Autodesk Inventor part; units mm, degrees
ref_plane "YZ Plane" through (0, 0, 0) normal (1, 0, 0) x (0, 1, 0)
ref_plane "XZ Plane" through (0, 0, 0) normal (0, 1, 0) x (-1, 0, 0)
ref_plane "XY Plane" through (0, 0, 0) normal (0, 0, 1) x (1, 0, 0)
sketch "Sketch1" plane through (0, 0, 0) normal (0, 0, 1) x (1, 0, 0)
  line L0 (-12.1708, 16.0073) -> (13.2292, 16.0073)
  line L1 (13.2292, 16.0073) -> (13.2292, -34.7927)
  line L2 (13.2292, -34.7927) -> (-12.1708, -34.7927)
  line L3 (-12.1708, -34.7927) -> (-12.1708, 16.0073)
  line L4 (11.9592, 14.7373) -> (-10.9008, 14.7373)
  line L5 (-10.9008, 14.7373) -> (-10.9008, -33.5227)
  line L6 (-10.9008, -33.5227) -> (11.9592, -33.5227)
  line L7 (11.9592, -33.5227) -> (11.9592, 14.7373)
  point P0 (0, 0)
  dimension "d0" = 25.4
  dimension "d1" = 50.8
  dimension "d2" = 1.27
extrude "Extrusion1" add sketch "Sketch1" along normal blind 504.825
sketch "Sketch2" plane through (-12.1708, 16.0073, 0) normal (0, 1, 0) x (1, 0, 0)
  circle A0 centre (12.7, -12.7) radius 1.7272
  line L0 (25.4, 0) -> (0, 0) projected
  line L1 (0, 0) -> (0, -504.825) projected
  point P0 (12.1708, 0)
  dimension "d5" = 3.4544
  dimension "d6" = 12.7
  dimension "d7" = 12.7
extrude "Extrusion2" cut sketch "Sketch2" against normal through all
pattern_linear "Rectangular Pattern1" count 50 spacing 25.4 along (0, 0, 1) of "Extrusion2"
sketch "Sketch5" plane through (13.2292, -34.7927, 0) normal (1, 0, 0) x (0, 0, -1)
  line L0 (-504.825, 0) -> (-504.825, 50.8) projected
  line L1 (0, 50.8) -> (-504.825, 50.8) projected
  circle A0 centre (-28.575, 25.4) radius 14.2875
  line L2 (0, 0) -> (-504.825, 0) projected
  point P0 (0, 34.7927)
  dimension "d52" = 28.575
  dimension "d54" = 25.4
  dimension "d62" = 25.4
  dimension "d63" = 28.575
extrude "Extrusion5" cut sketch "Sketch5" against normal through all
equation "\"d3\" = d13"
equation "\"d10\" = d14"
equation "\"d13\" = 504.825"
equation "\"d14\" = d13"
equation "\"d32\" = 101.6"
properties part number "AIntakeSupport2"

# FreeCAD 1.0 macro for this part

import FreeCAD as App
import Part
import Sketcher
Q = App.Units.Quantity

doc = App.newDocument("Part")
body = doc.addObject("PartDesign::Body", "Body")

# Sketch on XY plane
sketch1 = body.newObject("Sketcher::SketchObject", "Sketch")
sketch1.AttachmentSupport = (doc.getObject("XY_Plane"), [""])
sketch1.MapMode = "FlatFace"
sketch1.addGeometry([
    Part.LineSegment(App.Vector(13.2292, 16.0073, 0), App.Vector(-12.1708, 16.0073, 0)),  # 0
    Part.LineSegment(App.Vector(-12.1708, 16.0073, 0), App.Vector(-12.1708, -34.7927, 0)),  # 1
    Part.LineSegment(App.Vector(-12.1708, -34.7927, 0), App.Vector(13.2292, -34.7927, 0)),  # 2
    Part.LineSegment(App.Vector(13.2292, -34.7927, 0), App.Vector(13.2292, 16.0073, 0)),  # 3
    Part.LineSegment(App.Vector(-10.9008, 14.7373, 0), App.Vector(11.9592, 14.7373, 0)),  # 4
    Part.LineSegment(App.Vector(11.9592, 14.7373, 0), App.Vector(11.9592, -33.5227, 0)),  # 5
    Part.LineSegment(App.Vector(11.9592, -33.5227, 0), App.Vector(-10.9008, -33.5227, 0)),  # 6
    Part.LineSegment(App.Vector(-10.9008, -33.5227, 0), App.Vector(-10.9008, 14.7373, 0)),  # 7
], False)
sketch1.addConstraint([
    Sketcher.Constraint("Coincident", 0, 2, 1, 1),
    Sketcher.Constraint("Coincident", 1, 2, 2, 1),
    Sketcher.Constraint("Coincident", 2, 2, 3, 1),
    Sketcher.Constraint("Coincident", 3, 2, 0, 1),
    Sketcher.Constraint("Coincident", 4, 2, 5, 1),
    Sketcher.Constraint("Coincident", 5, 2, 6, 1),
    Sketcher.Constraint("Coincident", 6, 2, 7, 1),
    Sketcher.Constraint("Coincident", 7, 2, 4, 1),
    Sketcher.Constraint("Horizontal", 0),
    Sketcher.Constraint("Vertical", 1),
    Sketcher.Constraint("Horizontal", 2),
    Sketcher.Constraint("Vertical", 3),
    Sketcher.Constraint("Horizontal", 4),
    Sketcher.Constraint("Vertical", 5),
    Sketcher.Constraint("Horizontal", 6),
    Sketcher.Constraint("Vertical", 7),
    Sketcher.Constraint("DistanceX", 0, 2, 0, 1, Q("1 in")),
    Sketcher.Constraint("DistanceY", 1, 2, 1, 1, Q("2 in")),
    Sketcher.Constraint("DistanceX", 4, 2, 3, 2, Q("0.05 in")),
    Sketcher.Constraint("DistanceY", 4, 2, 3, 2, Q("0.05 in")),
    Sketcher.Constraint("DistanceY", 2, 2, 5, 2, Q("0.05 in")),
    Sketcher.Constraint("DistanceX", 1, 2, 6, 2, Q("0.05 in")),
    Sketcher.Constraint("DistanceY", -1, 1, 0, 2, Q("0.6302 in")),
    Sketcher.Constraint("DistanceX", 0, 2, -1, 1, Q("12.1708 mm")),
])
pad1 = body.newObject("PartDesign::Pad", "Pad")
pad1.Profile = sketch1
pad1.Length = Q("19.875 in")

# Sketch on XZ plane
sketch2 = body.newObject("Sketcher::SketchObject", "Sketch001")
sketch2.AttachmentSupport = (doc.getObject("XZ_Plane"), [""])
sketch2.MapMode = "FlatFace"
sketch2.AttachmentOffset = App.Placement(App.Vector(0, 0, -0.6302087 * 25.4), App.Rotation())
sketch2.addGeometry(Part.Circle(App.Vector(0.5292, 12.7, 0), App.Vector(0, 0, 1), 1.7272), False)
sketch2.addConstraint([
    Sketcher.Constraint("Diameter", 0, Q("0.136 in")),
    Sketcher.Constraint("DistanceY", -1, 1, 0, 3, Q("0.5 in")),
    Sketcher.Constraint("DistanceX", -1, 1, 0, 3, Q("0.5292 mm")),
])
pocket1 = body.newObject("PartDesign::Pocket", "Pocket")
pocket1.Profile = sketch2
pocket1.Type = "ThroughAll"
pocket1.Reversed = True
doc.recompute()

linearpattern = body.newObject("PartDesign::LinearPattern", "LinearPattern")
linearpattern.Originals = [pocket1]
linearpattern.Direction = (doc.getObject("Z_Axis"), [""])
linearpattern.Mode = "offset"
linearpattern.Offset = Q("1 in")
linearpattern.Occurrences = 50
body.Tip = linearpattern

# Sketch on YZ plane
sketch3 = body.newObject("Sketcher::SketchObject", "Sketch002")
sketch3.AttachmentSupport = (doc.getObject("YZ_Plane"), [""])
sketch3.MapMode = "FlatFace"
sketch3.AttachmentOffset = App.Placement(App.Vector(0, 0, 13.2292), App.Rotation())
sketch3.addGeometry(Part.Circle(App.Vector(-9.3927, 28.575, 0), App.Vector(0, 0, 1), 14.2875), False)
sketch3.addConstraint([
    Sketcher.Constraint("Diameter", 0, Q("1.125 in")),
    Sketcher.Constraint("DistanceY", -1, 1, 0, 3, Q("1.125 in")),
    Sketcher.Constraint("DistanceX", 0, 3, -1, 1, Q("0.3698 in")),
])
pocket2 = body.newObject("PartDesign::Pocket", "Pocket001")
pocket2.Profile = sketch3
pocket2.Type = "ThroughAll"

doc.recompute()
